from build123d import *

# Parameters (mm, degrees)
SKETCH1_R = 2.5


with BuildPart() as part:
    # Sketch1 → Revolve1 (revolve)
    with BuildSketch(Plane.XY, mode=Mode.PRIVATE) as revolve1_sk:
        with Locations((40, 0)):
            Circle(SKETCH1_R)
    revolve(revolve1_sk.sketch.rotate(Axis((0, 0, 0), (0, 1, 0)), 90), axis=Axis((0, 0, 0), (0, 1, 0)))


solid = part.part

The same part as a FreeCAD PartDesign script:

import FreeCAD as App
import Part
import Sketcher

doc = App.newDocument("Part")
body = doc.addObject("PartDesign::Body", "Body")

# Sketch on XY plane
sketch1 = doc.addObject("Sketcher::SketchObject", "Sketch")
body.addObject(sketch1)
sketch1.AttachmentSupport = (doc.XY_Plane, [""])
sketch1.MapMode = "FlatFace"
sketch1.addGeometry(Part.Circle(App.Vector(40, 0, 0), App.Vector(0, 0, 1), 2.5), False)
sketch1.addConstraint(Sketcher.Constraint("PointOnObject", 0, 3, -1))
sketch1.addConstraint(Sketcher.Constraint("Diameter", 0, 5.0))
sketch1.addConstraint(Sketcher.Constraint("DistanceX", -1, 1, 0, 3, 40.0))
revolution = doc.addObject("PartDesign::Revolution", "Revolution")
body.addObject(revolution)
revolution.Profile = sketch1
revolution.ReferenceAxis = (sketch1, ["V_Axis"])
revolution.Angle = 360

doc.recompute()
